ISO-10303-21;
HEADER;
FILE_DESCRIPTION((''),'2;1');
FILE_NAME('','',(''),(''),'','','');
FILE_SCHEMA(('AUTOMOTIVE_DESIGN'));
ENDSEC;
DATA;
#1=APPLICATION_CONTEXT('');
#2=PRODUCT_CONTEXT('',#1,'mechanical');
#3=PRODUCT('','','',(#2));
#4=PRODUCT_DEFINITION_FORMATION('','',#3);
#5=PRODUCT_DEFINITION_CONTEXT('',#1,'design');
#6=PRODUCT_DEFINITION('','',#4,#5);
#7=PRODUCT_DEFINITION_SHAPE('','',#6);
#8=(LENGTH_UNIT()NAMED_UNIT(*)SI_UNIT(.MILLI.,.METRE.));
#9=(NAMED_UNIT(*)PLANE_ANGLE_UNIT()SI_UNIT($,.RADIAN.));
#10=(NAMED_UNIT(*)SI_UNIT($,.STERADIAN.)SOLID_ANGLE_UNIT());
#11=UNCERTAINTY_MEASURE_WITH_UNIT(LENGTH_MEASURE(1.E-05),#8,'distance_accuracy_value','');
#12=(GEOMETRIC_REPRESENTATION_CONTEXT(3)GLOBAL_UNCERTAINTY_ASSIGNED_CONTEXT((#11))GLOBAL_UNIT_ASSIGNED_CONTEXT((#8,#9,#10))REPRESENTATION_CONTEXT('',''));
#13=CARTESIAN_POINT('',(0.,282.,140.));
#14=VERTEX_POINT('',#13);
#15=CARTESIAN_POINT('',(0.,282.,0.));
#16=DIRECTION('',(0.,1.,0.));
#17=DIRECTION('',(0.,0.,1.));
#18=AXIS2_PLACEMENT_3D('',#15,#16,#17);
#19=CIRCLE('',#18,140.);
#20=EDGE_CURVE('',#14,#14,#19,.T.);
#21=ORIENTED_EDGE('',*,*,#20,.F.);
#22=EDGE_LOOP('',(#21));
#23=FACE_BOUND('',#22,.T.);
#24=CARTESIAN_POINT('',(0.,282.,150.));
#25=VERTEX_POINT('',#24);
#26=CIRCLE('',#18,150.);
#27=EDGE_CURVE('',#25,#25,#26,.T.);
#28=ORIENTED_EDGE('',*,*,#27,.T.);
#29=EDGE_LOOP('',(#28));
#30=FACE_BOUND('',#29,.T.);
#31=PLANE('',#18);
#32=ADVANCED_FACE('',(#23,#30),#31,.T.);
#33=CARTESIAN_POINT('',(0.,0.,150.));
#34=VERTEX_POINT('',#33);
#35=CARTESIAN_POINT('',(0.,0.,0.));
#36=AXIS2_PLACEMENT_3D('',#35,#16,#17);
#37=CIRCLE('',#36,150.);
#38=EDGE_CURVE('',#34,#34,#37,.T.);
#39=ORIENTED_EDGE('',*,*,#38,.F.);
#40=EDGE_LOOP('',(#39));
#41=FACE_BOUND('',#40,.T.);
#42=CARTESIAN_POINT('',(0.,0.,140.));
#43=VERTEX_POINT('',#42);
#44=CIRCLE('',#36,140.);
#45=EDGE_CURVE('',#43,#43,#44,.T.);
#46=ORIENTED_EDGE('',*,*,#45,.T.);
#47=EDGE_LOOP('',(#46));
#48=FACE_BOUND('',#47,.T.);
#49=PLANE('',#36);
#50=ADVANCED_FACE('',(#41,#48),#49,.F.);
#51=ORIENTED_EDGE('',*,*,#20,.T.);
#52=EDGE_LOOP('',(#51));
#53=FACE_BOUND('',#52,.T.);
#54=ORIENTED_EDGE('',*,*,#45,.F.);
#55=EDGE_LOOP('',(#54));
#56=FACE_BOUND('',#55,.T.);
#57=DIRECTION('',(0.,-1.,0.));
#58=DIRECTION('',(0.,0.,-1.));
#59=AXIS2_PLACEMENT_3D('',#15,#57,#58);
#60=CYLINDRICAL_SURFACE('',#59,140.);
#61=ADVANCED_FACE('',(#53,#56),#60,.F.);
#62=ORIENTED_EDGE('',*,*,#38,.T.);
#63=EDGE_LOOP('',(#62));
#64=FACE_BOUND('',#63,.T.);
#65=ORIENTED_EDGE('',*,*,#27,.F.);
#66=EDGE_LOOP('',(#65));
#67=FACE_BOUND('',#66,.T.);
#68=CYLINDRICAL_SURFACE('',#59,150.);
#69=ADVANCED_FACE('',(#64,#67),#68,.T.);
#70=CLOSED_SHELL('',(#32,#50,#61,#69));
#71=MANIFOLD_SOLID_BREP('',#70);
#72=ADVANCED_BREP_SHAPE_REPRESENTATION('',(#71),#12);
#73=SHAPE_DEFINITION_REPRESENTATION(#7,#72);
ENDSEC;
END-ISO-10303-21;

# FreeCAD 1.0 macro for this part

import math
import FreeCAD as App
import Part
import Sketcher
from FreeCAD import Vector

doc = App.newDocument("Part")
body = doc.addObject("PartDesign::Body", "Body")

sketch1 = body.newObject("Sketcher::SketchObject", "Sketch")
sketch1.AttachmentSupport = (doc.getObject("XZ_Plane"), [""])
sketch1.MapMode = "FlatFace"
sketch1.addGeometry(Part.Circle(Vector(0, 0, 0), Vector(0, 0, 1), 150), False)
sketch1.addGeometry(Part.ArcOfCircle(Part.Circle(Vector(0, 0, 0), Vector(0, 0, 1), 140), math.radians(90), math.radians(270)), False)
sketch1.addGeometry(Part.ArcOfCircle(Part.Circle(Vector(0, 0, 0), Vector(0, 0, 1), 140), math.radians(-90), math.radians(0)), False)
sketch1.addGeometry(Part.ArcOfCircle(Part.Circle(Vector(0, 0, 0), Vector(0, 0, 1), 140), math.radians(0), math.radians(90)), False)
sketch1.addConstraint(Sketcher.Constraint("Tangent", 1, 2, 2, 1))
sketch1.addConstraint(Sketcher.Constraint("Tangent", 2, 2, 3, 1))
sketch1.addConstraint(Sketcher.Constraint("Tangent", 3, 2, 1, 1))
sketch1.addConstraint(Sketcher.Constraint("Coincident", 0, 3, -1, 1))
sketch1.addConstraint(Sketcher.Constraint("Coincident", 1, 3, -1, 1))
sketch1.addConstraint(Sketcher.Constraint("PointOnObject", 1, 2, -2))
sketch1.addConstraint(Sketcher.Constraint("PointOnObject", 2, 2, -1))
sketch1.addConstraint(Sketcher.Constraint("PointOnObject", 3, 2, -2))
sketch1.addConstraint(Sketcher.Constraint("Diameter", 0, 300.0))
sketch1.addConstraint(Sketcher.Constraint("Radius", 1, 140.0))
pad1 = body.newObject("PartDesign::Pad", "Pad")
pad1.Profile = sketch1
pad1.Length = 282
pad1.Reversed = True

doc.recompute()
